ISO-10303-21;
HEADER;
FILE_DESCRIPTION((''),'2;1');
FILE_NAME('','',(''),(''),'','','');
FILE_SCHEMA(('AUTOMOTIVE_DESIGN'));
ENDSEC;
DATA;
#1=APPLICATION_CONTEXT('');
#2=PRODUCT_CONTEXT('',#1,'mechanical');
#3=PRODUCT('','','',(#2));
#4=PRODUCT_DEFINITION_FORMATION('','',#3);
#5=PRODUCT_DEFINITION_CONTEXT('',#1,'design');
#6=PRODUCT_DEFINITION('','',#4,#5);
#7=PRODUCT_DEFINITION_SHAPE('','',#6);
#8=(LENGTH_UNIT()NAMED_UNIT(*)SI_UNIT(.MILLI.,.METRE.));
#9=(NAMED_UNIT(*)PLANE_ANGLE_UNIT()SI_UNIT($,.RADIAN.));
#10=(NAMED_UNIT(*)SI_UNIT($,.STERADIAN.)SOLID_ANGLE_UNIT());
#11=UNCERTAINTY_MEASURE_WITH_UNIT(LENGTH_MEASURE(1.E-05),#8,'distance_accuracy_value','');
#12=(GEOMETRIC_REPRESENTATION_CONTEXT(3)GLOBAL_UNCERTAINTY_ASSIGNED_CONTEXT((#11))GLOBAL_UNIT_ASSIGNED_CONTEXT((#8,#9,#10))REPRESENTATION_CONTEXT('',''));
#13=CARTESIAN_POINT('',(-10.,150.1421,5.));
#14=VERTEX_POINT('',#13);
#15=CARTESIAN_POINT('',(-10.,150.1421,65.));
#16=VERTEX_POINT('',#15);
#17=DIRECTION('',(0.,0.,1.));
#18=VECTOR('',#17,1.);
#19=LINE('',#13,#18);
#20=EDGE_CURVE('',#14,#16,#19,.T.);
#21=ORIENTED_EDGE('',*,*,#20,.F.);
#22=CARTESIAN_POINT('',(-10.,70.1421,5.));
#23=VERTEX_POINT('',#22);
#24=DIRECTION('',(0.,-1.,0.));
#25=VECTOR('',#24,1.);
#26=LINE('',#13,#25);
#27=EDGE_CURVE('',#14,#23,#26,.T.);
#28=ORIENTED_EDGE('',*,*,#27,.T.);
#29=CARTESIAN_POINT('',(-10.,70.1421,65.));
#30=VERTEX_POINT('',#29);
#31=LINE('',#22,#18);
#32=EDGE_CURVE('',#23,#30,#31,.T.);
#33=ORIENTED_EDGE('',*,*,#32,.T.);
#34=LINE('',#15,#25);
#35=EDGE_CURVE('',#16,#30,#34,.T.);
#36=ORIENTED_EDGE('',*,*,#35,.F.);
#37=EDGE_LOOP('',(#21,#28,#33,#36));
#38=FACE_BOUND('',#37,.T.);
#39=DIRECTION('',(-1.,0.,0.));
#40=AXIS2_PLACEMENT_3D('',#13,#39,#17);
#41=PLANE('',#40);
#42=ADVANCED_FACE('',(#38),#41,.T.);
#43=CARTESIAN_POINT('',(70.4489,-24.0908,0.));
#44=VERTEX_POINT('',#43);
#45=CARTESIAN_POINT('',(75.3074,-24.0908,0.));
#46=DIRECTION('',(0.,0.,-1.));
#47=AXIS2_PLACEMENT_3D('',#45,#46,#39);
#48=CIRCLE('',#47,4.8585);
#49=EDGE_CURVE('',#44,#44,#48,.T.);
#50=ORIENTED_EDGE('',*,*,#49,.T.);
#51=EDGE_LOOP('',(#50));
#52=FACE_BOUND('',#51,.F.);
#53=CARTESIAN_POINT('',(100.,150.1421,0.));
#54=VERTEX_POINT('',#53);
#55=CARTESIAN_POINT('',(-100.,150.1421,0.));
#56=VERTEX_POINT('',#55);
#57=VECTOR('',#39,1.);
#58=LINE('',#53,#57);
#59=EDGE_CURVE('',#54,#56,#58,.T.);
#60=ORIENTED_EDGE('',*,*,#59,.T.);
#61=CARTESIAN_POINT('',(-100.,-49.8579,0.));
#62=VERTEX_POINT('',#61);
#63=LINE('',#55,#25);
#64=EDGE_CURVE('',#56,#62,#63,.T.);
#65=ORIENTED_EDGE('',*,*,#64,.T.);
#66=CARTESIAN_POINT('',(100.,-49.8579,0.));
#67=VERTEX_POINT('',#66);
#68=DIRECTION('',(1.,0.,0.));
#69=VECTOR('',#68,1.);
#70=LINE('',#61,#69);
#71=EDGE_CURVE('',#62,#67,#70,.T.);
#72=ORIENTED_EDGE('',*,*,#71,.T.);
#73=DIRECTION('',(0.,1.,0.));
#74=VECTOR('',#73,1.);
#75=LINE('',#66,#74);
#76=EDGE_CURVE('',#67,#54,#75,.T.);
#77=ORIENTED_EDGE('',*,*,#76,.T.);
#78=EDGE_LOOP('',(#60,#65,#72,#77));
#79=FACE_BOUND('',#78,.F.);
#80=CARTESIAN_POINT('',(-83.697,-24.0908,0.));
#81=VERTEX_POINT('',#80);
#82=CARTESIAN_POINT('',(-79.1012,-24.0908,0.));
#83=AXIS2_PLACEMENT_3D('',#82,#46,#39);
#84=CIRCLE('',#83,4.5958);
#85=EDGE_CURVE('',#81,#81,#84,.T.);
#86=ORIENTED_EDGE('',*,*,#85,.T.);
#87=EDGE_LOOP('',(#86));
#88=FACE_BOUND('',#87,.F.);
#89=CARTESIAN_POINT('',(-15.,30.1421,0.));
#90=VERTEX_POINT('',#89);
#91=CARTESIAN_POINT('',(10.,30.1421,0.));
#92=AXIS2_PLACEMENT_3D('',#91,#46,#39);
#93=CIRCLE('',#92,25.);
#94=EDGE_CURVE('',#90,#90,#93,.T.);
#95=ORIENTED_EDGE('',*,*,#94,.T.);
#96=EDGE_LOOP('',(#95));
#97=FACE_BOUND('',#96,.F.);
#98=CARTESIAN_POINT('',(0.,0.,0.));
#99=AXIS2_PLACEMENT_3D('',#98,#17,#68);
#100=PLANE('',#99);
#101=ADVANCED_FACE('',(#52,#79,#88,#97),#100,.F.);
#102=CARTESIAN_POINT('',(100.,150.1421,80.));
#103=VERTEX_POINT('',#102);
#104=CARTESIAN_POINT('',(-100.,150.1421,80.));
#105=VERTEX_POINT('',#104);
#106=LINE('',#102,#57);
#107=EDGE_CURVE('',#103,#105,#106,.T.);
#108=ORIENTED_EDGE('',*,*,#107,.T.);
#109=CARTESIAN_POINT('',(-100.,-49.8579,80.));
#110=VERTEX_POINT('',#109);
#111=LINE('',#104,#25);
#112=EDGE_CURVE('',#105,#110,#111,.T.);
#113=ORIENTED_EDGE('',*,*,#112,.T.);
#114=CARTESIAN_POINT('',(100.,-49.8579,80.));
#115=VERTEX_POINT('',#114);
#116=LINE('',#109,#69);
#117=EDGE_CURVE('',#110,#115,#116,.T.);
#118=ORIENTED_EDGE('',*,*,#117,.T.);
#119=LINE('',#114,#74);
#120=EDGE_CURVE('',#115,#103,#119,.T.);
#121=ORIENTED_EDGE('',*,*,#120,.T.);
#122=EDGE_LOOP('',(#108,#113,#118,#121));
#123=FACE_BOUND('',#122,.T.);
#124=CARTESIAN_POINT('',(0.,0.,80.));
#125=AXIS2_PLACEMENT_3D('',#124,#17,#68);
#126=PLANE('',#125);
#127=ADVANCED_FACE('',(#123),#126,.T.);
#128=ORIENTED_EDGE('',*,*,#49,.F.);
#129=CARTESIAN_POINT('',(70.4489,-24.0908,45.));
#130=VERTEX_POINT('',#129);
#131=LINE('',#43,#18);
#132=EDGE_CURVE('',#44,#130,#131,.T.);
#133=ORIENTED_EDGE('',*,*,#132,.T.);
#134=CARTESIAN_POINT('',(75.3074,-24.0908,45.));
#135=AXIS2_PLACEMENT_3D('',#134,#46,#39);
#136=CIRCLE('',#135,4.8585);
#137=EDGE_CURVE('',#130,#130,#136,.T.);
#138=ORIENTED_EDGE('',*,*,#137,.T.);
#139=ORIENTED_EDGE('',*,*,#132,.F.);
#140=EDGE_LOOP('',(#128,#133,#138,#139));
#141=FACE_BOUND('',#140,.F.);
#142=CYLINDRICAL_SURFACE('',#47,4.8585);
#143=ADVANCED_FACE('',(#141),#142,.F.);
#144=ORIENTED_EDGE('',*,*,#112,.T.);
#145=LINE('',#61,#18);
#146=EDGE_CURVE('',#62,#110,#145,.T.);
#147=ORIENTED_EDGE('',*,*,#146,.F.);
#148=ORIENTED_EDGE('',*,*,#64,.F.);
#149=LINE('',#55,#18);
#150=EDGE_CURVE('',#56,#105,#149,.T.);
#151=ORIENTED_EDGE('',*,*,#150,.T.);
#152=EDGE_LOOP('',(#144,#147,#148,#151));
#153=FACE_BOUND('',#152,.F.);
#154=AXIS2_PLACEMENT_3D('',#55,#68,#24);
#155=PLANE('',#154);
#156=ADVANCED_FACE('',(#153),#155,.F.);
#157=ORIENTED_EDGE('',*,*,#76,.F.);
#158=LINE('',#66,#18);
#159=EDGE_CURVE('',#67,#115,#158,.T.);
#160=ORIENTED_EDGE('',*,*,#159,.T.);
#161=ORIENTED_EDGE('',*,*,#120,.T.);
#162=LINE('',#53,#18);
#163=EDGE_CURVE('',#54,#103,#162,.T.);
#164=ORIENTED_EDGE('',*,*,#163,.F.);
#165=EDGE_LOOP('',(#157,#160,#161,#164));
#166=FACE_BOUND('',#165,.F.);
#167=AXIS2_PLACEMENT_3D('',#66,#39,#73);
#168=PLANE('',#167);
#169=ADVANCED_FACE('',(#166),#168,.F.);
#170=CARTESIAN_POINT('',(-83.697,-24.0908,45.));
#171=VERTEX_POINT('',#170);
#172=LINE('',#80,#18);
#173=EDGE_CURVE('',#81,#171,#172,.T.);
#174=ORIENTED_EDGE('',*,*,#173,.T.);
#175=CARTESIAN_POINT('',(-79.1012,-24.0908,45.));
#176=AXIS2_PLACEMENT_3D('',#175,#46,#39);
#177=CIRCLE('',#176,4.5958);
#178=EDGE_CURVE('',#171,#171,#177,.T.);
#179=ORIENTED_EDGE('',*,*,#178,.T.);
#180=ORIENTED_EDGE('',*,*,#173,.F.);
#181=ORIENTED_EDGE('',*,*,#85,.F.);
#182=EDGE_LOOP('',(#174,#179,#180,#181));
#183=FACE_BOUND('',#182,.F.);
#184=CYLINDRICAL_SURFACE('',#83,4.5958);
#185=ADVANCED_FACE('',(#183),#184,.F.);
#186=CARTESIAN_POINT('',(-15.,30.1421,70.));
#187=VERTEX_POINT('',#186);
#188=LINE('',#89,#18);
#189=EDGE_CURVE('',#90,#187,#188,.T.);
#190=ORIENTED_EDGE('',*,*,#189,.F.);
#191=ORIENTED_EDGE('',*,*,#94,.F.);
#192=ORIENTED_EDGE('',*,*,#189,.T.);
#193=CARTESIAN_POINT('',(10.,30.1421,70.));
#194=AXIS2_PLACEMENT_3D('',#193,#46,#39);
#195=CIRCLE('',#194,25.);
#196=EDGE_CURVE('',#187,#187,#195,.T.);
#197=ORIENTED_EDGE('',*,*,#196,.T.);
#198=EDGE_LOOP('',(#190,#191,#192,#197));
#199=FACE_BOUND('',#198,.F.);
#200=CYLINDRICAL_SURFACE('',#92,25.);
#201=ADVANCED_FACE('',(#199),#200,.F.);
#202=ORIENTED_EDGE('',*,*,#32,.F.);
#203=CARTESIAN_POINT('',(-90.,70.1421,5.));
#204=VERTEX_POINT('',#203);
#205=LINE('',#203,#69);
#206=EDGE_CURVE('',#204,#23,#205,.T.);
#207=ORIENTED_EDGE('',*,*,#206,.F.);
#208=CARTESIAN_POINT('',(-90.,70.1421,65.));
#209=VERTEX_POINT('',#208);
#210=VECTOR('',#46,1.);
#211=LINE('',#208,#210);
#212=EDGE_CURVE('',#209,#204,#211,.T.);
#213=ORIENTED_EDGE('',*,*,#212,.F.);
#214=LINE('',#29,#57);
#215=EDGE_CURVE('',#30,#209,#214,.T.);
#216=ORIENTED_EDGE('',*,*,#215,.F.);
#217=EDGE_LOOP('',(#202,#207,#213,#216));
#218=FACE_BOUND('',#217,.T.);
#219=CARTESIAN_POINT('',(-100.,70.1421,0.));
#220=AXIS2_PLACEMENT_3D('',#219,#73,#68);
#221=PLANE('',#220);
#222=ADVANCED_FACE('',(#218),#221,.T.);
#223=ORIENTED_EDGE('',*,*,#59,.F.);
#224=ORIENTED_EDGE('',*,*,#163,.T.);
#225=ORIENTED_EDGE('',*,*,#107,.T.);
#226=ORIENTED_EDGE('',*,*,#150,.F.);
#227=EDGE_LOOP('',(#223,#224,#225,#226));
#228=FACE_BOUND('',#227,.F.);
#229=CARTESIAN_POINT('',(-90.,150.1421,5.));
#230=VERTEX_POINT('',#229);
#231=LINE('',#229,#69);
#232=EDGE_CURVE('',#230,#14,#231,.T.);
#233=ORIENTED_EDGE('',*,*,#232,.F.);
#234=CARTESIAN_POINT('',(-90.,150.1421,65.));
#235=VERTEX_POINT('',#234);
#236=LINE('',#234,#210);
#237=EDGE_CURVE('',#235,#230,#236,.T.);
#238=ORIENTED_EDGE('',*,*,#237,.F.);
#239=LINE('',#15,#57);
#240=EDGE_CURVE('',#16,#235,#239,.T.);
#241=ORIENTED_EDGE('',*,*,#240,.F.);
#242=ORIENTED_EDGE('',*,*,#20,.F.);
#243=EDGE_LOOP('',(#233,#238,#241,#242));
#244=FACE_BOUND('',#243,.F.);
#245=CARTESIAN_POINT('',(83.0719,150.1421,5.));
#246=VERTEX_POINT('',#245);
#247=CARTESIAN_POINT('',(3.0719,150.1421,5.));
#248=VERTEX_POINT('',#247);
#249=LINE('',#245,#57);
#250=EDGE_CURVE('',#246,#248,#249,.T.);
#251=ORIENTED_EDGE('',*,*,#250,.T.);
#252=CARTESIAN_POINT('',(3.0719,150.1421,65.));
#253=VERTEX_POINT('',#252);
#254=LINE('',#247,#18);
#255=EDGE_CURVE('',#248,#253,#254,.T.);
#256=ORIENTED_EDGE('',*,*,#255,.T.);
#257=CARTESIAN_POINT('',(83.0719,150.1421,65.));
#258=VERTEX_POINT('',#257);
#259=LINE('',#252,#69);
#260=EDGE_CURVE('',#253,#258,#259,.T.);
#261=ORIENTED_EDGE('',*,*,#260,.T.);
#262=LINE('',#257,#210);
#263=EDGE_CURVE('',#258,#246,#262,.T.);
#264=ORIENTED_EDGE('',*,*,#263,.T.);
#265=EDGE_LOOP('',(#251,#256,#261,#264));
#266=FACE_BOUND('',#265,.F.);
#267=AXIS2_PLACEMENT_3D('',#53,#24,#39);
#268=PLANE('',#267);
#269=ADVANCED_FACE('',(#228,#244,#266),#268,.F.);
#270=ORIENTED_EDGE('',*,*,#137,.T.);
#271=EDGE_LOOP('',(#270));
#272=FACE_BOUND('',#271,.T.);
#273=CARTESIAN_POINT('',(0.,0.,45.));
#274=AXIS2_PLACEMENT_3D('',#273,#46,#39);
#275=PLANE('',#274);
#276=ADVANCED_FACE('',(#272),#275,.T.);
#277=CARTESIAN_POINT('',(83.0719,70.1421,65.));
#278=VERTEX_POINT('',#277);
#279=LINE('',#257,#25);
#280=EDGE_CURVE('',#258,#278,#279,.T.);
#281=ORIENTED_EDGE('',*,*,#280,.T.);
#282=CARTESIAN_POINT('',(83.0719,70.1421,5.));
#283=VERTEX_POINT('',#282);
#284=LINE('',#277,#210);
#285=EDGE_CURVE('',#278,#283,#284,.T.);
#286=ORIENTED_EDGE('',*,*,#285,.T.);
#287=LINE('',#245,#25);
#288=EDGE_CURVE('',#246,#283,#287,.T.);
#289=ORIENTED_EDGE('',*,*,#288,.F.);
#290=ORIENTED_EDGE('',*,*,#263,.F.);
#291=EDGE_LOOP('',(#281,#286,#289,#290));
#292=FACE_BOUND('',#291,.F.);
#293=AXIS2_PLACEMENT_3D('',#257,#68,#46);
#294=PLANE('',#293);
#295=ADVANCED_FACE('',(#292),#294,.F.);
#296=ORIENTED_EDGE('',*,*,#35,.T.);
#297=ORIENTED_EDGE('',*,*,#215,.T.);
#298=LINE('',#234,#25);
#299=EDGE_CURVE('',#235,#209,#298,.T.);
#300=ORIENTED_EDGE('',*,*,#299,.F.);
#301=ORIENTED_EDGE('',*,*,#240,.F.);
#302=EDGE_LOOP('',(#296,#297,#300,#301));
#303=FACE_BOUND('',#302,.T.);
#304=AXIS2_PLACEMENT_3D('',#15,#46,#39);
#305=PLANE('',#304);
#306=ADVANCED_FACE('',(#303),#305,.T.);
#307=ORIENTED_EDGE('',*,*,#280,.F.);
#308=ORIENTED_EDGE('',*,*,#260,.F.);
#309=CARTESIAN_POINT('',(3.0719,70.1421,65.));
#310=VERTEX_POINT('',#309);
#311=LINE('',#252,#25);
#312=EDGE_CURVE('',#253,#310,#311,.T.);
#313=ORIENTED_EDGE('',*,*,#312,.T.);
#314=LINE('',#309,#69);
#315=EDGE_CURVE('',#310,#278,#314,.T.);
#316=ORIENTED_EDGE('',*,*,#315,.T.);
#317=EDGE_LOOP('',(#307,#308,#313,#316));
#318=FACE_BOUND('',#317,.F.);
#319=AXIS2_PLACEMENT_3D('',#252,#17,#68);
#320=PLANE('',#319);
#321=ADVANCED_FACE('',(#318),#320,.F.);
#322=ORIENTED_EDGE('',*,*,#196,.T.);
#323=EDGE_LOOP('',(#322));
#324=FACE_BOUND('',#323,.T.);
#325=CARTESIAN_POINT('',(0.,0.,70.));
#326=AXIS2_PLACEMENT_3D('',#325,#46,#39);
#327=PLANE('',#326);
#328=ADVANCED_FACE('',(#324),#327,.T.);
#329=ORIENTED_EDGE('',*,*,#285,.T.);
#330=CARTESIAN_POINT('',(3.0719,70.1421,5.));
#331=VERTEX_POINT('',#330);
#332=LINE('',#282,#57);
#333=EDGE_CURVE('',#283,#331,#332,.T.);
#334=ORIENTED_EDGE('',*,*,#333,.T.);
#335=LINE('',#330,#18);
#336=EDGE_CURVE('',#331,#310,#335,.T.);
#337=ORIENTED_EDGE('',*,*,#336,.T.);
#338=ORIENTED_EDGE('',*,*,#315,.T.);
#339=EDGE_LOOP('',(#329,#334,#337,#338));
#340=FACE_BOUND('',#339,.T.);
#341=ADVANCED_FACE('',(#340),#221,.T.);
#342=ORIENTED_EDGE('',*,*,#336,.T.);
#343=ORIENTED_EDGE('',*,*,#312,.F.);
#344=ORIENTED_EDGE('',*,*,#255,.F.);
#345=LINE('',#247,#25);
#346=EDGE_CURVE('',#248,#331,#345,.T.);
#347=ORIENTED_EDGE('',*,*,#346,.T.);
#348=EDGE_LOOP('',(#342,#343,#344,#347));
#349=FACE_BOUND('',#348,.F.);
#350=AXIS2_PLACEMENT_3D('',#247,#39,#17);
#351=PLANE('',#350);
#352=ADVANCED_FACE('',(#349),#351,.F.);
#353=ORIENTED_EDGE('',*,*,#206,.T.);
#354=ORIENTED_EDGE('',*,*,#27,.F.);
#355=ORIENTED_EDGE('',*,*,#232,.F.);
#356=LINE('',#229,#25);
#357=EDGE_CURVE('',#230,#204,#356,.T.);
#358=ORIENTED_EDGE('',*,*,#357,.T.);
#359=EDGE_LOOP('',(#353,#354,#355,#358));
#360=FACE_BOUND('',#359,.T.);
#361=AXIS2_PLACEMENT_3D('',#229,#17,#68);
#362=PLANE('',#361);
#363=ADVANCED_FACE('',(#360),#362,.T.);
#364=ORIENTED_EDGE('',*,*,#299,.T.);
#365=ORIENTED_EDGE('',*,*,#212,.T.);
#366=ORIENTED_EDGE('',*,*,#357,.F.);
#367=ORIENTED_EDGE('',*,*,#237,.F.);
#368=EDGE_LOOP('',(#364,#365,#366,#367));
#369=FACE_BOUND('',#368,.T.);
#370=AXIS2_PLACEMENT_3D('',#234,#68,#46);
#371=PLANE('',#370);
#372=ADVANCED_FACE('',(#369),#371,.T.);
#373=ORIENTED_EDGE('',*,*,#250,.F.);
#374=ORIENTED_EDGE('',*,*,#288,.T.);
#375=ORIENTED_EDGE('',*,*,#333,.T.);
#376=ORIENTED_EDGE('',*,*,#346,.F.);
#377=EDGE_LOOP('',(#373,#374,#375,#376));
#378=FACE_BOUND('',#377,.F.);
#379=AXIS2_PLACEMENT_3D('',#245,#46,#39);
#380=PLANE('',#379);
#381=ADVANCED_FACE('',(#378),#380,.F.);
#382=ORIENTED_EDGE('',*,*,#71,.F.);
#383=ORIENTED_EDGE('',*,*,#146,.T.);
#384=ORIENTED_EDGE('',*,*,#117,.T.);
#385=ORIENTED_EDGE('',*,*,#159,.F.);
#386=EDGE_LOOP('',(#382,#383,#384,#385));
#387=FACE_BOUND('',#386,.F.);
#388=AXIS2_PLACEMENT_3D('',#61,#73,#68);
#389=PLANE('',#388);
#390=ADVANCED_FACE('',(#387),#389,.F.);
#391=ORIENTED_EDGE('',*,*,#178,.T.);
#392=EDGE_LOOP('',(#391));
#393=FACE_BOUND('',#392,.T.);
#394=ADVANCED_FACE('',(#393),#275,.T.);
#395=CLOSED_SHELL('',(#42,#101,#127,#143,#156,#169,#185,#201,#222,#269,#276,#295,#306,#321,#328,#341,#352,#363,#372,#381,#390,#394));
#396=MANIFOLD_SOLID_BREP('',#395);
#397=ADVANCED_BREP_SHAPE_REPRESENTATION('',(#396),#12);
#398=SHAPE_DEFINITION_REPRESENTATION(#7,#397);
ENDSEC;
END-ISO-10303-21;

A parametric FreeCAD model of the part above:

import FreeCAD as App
import Part
import Sketcher
Q = App.Units.Quantity


def add_polygon(sketch, points):
    """Adds a closed chain of lines whose ends are joined by coincident constraints."""
    first, n = sketch.GeometryCount, len(points)
    for a, b in zip(points, points[1:] + points[:1]):
        sketch.addGeometry(Part.LineSegment(App.Vector(*a, 0), App.Vector(*b, 0)), False)
    for i in range(n):
        sketch.addConstraint(Sketcher.Constraint("Coincident", first + i, 2, first + (i + 1) % n, 1))

doc = App.newDocument("Part")
body = doc.addObject("PartDesign::Body", "Body")

sketch1 = body.newObject("Sketcher::SketchObject", "Sketch")
sketch1.AttachmentSupport = (doc.getObject("XY_Plane"), [""])
sketch1.MapMode = "FlatFace"
add_polygon(sketch1, [(-100, 150), (-100, -50), (100, -50), (100, 150)])
sketch1.addConstraint([
    Sketcher.Constraint("Vertical", 0),
    Sketcher.Constraint("Horizontal", 1),
    Sketcher.Constraint("Vertical", 2),
    Sketcher.Constraint("Horizontal", 3),
    Sketcher.Constraint("Equal", 3, 0),
    Sketcher.Constraint("DistanceX", 1, 1, 1, 2, Q("200 mm")),
    Sketcher.Constraint("DistanceX", 0, 2, -1, 1, Q("100 mm")),
    Sketcher.Constraint("DistanceY", 0, 2, -1, 1, Q("49.858 mm")),
])
pad1 = body.newObject("PartDesign::Pad", "Pad")
pad1.Profile = sketch1
pad1.Length = 80

sketch2 = body.newObject("Sketcher::SketchObject", "Sketch001")
sketch2.AttachmentSupport = (doc.getObject("XZ_Plane"), [""])
sketch2.MapMode = "FlatFace"
sketch2.AttachmentOffset = App.Placement(App.Vector(0, 0, -150.1421), App.Rotation())
add_polygon(sketch2, [(-90, 65), (-10, 65), (-10, 5), (-90, 5)])
sketch2.addConstraint([
    Sketcher.Constraint("Horizontal", 0),
    Sketcher.Constraint("Vertical", 1),
    Sketcher.Constraint("Horizontal", 2),
    Sketcher.Constraint("Vertical", 3),
    Sketcher.Constraint("DistanceX", 0, 1, 0, 2, Q("80 mm")),
    Sketcher.Constraint("DistanceY", 1, 2, 1, 1, Q("60 mm")),
    Sketcher.Constraint("DistanceX", 0, 2, -1, 1, Q("10 mm")),
    Sketcher.Constraint("DistanceY", -1, 1, 1, 2, Q("5 mm")),
])
pocket1 = body.newObject("PartDesign::Pocket", "Pocket")
pocket1.Profile = sketch2
pocket1.Length = 80
pocket1.Reversed = True

sketch3 = body.newObject("Sketcher::SketchObject", "Sketch002")
sketch3.AttachmentSupport = (doc.getObject("XY_Plane"), [""])
sketch3.MapMode = "FlatFace"
sketch3.addGeometry(Part.Circle(App.Vector(10, 30, 0), App.Vector(0, 0, 1), 25), False)
sketch3.addConstraint([
    Sketcher.Constraint("Diameter", 0, Q("50 mm")),
    Sketcher.Constraint("DistanceX", -1, 1, 0, 3, Q("10 mm")),
    Sketcher.Constraint("DistanceY", -1, 1, 0, 3, Q("30.142 mm")),
])
pocket2 = body.newObject("PartDesign::Pocket", "Pocket001")
pocket2.Profile = sketch3
pocket2.Length = 70
pocket2.Reversed = True

sketch4 = body.newObject("Sketcher::SketchObject", "Sketch003")
sketch4.AttachmentSupport = (doc.getObject("XZ_Plane"), [""])
sketch4.MapMode = "FlatFace"
sketch4.AttachmentOffset = App.Placement(App.Vector(0, 0, -150.1421), App.Rotation())
add_polygon(sketch4, [(83, 65), (83, 5), (3, 5), (3, 65)])
sketch4.addConstraint([
    Sketcher.Constraint("Vertical", 0),
    Sketcher.Constraint("Horizontal", 1),
    Sketcher.Constraint("Vertical", 2),
    Sketcher.Constraint("Horizontal", 3),
    Sketcher.Constraint("DistanceX", 1, 2, 1, 1, Q("80 mm")),
    Sketcher.Constraint("DistanceY", 0, 2, 0, 1, Q("60 mm")),
    Sketcher.Constraint("DistanceY", -1, 1, 0, 2, Q("5 mm")),
    Sketcher.Constraint("DistanceX", -1, 1, 0, 2, Q("83.072 mm")),
])
pocket3 = body.newObject("PartDesign::Pocket", "Pocket002")
pocket3.Profile = sketch4
pocket3.Length = 80
pocket3.Reversed = True

sketch5 = body.newObject("Sketcher::SketchObject", "Sketch004")
sketch5.AttachmentSupport = (doc.getObject("XY_Plane"), [""])
sketch5.MapMode = "FlatFace"
sketch5.addGeometry([
    Part.Circle(App.Vector(-79.1, -24.1, 0), App.Vector(0, 0, 1), 4.6),
    Part.Circle(App.Vector(75.3, -24.1, 0), App.Vector(0, 0, 1), 4.9),
], False)
sketch5.addConstraint([
    Sketcher.Constraint("Horizontal", 0, 3, 1, 3),
    Sketcher.Constraint("Diameter", 1, Q("9.717 mm")),
    Sketcher.Constraint("Diameter", 0, Q("9.1916 mm")),
    Sketcher.Constraint("DistanceX", 0, 3, -1, 1, Q("79.1012 mm")),
    Sketcher.Constraint("DistanceY", 0, 3, -1, 1, Q("24.0908 mm")),
    Sketcher.Constraint("DistanceX", -1, 1, 1, 3, Q("75.3074 mm")),
])
pocket4 = body.newObject("PartDesign::Pocket", "Pocket003")
pocket4.Profile = sketch5
pocket4.Length = 45
pocket4.Reversed = True

doc.recompute()
